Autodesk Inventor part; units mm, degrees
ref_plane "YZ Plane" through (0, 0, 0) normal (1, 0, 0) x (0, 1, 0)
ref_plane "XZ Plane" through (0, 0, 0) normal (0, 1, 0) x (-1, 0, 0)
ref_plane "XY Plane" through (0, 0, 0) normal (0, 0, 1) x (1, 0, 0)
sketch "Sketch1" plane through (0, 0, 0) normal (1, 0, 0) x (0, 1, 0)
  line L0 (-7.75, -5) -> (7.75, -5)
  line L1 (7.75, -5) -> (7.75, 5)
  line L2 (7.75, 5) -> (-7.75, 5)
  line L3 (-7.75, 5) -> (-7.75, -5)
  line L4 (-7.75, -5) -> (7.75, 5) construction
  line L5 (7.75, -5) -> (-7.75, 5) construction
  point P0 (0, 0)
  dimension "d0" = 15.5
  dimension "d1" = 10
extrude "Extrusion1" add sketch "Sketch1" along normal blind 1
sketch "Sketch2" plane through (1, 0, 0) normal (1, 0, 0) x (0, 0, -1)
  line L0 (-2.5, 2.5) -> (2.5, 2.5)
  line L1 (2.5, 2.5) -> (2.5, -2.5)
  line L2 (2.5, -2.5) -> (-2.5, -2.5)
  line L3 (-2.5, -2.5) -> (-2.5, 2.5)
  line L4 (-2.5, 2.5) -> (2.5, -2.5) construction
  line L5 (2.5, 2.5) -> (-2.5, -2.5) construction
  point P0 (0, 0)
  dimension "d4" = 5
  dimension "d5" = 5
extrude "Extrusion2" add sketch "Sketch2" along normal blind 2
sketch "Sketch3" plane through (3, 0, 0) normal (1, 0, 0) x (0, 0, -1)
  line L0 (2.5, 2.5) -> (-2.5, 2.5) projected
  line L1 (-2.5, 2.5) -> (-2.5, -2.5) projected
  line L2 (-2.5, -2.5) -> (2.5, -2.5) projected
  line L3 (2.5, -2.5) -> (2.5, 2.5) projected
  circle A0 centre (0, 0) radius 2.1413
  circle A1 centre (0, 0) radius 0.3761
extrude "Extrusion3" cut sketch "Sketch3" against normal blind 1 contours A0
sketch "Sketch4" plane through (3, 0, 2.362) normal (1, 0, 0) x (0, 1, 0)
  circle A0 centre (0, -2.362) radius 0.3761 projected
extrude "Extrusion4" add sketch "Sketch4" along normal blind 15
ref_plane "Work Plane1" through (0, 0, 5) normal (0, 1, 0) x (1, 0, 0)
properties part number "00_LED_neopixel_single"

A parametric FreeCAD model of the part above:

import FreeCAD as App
import Part
import Sketcher
from FreeCAD import Vector
Q = App.Units.Quantity


def add_polygon(sketch, points):
    """Adds a closed chain of lines whose ends are joined by coincident constraints."""
    first, n = sketch.GeometryCount, len(points)
    for a, b in zip(points, points[1:] + points[:1]):
        sketch.addGeometry(Part.LineSegment(App.Vector(*a, 0), App.Vector(*b, 0)), False)
    for i in range(n):
        sketch.addConstraint(Sketcher.Constraint("Coincident", first + i, 2, first + (i + 1) % n, 1))

doc = App.newDocument("Part")
body = doc.addObject("PartDesign::Body", "Body")

sketch1 = body.newObject("Sketcher::SketchObject", "Sketch")
sketch1.AttachmentSupport = (doc.getObject("YZ_Plane"), [""])
sketch1.MapMode = "FlatFace"
add_polygon(sketch1, [(-7.75, 5), (-7.75, -5), (7.75, -5), (7.75, 5)])
sketch1.addConstraint(Sketcher.Constraint("Vertical", 0))
sketch1.addConstraint(Sketcher.Constraint("Horizontal", 1))
sketch1.addConstraint(Sketcher.Constraint("Vertical", 2))
sketch1.addConstraint(Sketcher.Constraint("Horizontal", 3))
sketch1.addConstraint(Sketcher.Constraint("Symmetric", 0, 2, 2, 2, -1, 1))
sketch1.addConstraint(Sketcher.Constraint("DistanceY", 0, 2, 0, 1, Q("10 mm")))
sketch1.addConstraint(Sketcher.Constraint("DistanceX", 1, 1, 1, 2, Q("15.5 mm")))
pad1 = body.newObject("PartDesign::Pad", "Pad")
pad1.Profile = sketch1
pad1.Length = 1

sketch2 = body.newObject("Sketcher::SketchObject", "Sketch001")
sketch2.AttachmentSupport = (doc.getObject("YZ_Plane"), [""])
sketch2.MapMode = "FlatFace"
sketch2.AttachmentOffset = App.Placement(Vector(0, 0, 1), App.Rotation())
add_polygon(sketch2, [(2.5, -2.5), (2.5, 2.5), (-2.5, 2.5), (-2.5, -2.5)])
sketch2.addConstraint(Sketcher.Constraint("Vertical", 0))
sketch2.addConstraint(Sketcher.Constraint("Horizontal", 1))
sketch2.addConstraint(Sketcher.Constraint("Vertical", 2))
sketch2.addConstraint(Sketcher.Constraint("Horizontal", 3))
sketch2.addConstraint(Sketcher.Constraint("Symmetric", 0, 2, 2, 2, -1, 1))
sketch2.addConstraint(Sketcher.Constraint("Equal", 3, 0))
sketch2.addConstraint(Sketcher.Constraint("DistanceX", 1, 2, 1, 1, Q("5 mm")))
pad2 = body.newObject("PartDesign::Pad", "Pad001")
pad2.Profile = sketch2
pad2.Length = 2

sketch3 = body.newObject("Sketcher::SketchObject", "Sketch002")
sketch3.AttachmentSupport = (doc.getObject("YZ_Plane"), [""])
sketch3.MapMode = "FlatFace"
sketch3.AttachmentOffset = App.Placement(Vector(0, 0, 3), App.Rotation())
sketch3.addGeometry(Part.Circle(Vector(0, 0, 0), Vector(0, 0, 1), 2.1413), False)
sketch3.addGeometry(Part.Circle(Vector(0, 0, 0), Vector(0, 0, 1), 0.3761), False)
sketch3.addConstraint(Sketcher.Constraint("Coincident", 0, 3, -1, 1))
sketch3.addConstraint(Sketcher.Constraint("Coincident", 1, 3, -1, 1))
sketch3.addConstraint(Sketcher.Constraint("Diameter", 0, Q("4.2826 mm")))
sketch3.addConstraint(Sketcher.Constraint("Diameter", 1, Q("0.7522 mm")))
pocket1 = body.newObject("PartDesign::Pocket", "Pocket")
pocket1.Profile = sketch3
pocket1.Length = 1

sketch4 = body.newObject("Sketcher::SketchObject", "Sketch003")
sketch4.AttachmentSupport = (doc.getObject("YZ_Plane"), [""])
sketch4.MapMode = "FlatFace"
sketch4.AttachmentOffset = App.Placement(Vector(0, 0, 3), App.Rotation())
sketch4.addGeometry(Part.Circle(Vector(0, 0, 0), Vector(0, 0, 1), 0.3761), False)
sketch4.addConstraint(Sketcher.Constraint("Coincident", 0, 3, -1, 1))
sketch4.addConstraint(Sketcher.Constraint("Diameter", 0, Q("0.7522 mm")))
pad3 = body.newObject("PartDesign::Pad", "Pad002")
pad3.Profile = sketch4
pad3.Length = 15

doc.recompute()
